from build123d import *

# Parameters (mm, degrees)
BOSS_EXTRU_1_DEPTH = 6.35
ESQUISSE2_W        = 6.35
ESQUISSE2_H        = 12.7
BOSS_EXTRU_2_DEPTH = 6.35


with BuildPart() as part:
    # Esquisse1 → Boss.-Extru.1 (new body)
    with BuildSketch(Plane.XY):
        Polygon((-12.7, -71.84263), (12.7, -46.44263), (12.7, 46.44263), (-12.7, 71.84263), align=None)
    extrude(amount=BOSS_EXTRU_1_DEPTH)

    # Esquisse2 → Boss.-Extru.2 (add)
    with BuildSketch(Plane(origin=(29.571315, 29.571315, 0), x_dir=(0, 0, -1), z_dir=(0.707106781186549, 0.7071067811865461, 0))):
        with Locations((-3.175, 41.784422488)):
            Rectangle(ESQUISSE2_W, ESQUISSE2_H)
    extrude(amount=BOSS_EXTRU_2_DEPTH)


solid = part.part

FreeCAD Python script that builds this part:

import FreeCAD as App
import Part
import Sketcher

V = App.Vector
Q = App.Units.Quantity

doc = App.newDocument("Part")
body = doc.addObject("PartDesign::Body", "Body")

sketch1 = body.newObject("Sketcher::SketchObject", "Sketch")
sketch1.AttachmentSupport = (doc.getObject("XY_Plane"), [""])
sketch1.MapMode = "FlatFace"
sketch1.addGeometry([
    Part.LineSegment(V(-13, -72, 0), V(13, -46, 0)),
    Part.LineSegment(V(13, -46, 0), V(13, 46, 0)),
    Part.LineSegment(V(13, 46, 0), V(-13, 72, 0)),
    Part.LineSegment(V(-13, 72, 0), V(-13, -72, 0)),
], False)
sketch1.addConstraint([
    Sketcher.Constraint("Coincident", 0, 2, 1, 1),
    Sketcher.Constraint("Coincident", 1, 2, 2, 1),
    Sketcher.Constraint("Coincident", 2, 2, 3, 1),
    Sketcher.Constraint("Coincident", 3, 2, 0, 1),
    Sketcher.Constraint("Vertical", 1),
    Sketcher.Constraint("Vertical", 3),
    Sketcher.Constraint("Perpendicular", 0, 2),
    Sketcher.Constraint("Equal", 0, 2),
    Sketcher.Constraint("DistanceX", 2, 2, 1, 2, Q("1 in")),
    Sketcher.Constraint("DistanceX", -1, 1, 0, 2, Q("0.5 in")),
    Sketcher.Constraint("DistanceY", 1, 1, 1, 2, Q("3.6569 in")),
    Sketcher.Constraint("DistanceY", 0, 2, -1, 1, 46.44263),
])
pad1 = body.newObject("PartDesign::Pad", "Pad")
pad1.Profile = sketch1
pad1.Length = Q("0.25 in")

sketch2 = body.newObject("Sketcher::SketchObject", "Sketch001")
sketch2.Placement = App.Placement(V(29.571315, 29.571315, 0), App.Rotation(V(0, 0, -1), V(-0.707106781, 0.707106781, 0), V(0.707106781, 0.707106781, 0), "ZXY"))
sketch2.addGeometry([
    Part.LineSegment(V(-6, 48, 0), V(-6, 35, 0)),
    Part.LineSegment(V(-6, 35, 0), V(0, 35, 0)),
    Part.LineSegment(V(0, 35, 0), V(0, 48, 0)),
    Part.LineSegment(V(0, 48, 0), V(-6, 48, 0)),
], False)
sketch2.addConstraint([
    Sketcher.Constraint("Coincident", 0, 2, 1, 1),
    Sketcher.Constraint("Coincident", 1, 2, 2, 1),
    Sketcher.Constraint("Coincident", 2, 2, 3, 1),
    Sketcher.Constraint("Coincident", 3, 2, 0, 1),
    Sketcher.Constraint("Vertical", 0),
    Sketcher.Constraint("Horizontal", 1),
    Sketcher.Constraint("Vertical", 2),
    Sketcher.Constraint("Horizontal", 3),
    Sketcher.Constraint("PointOnObject", 1, 2, -2),
    Sketcher.Constraint("DistanceY", 0, 2, 0, 1, Q("0.5 in")),
    Sketcher.Constraint("DistanceX", 1, 1, 1, 2, Q("0.25 in")),
    Sketcher.Constraint("DistanceY", -1, 1, 0, 2, 35.434422),
])
pad2 = body.newObject("PartDesign::Pad", "Pad001")
pad2.Profile = sketch2
pad2.Length = Q("0.25 in")

doc.recompute()
